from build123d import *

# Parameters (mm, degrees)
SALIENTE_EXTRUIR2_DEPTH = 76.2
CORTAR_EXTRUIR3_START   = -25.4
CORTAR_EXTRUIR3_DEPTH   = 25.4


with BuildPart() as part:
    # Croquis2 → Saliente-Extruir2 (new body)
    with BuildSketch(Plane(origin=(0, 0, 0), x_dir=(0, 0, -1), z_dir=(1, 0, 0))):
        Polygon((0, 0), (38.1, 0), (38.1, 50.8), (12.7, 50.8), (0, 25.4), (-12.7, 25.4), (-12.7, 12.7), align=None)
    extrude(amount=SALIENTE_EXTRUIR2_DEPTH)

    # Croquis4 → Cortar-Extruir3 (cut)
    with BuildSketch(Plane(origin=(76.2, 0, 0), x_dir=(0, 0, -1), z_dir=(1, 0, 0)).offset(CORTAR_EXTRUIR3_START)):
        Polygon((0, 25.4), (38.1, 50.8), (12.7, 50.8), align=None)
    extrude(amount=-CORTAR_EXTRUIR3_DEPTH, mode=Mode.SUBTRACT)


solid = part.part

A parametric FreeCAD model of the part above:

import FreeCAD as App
import Part
import Sketcher

V = App.Vector
Q = App.Units.Quantity


def add_polygon(sketch, points):
    """Adds a closed chain of lines whose ends are joined by coincident constraints."""
    first, n = sketch.GeometryCount, len(points)
    for a, b in zip(points, points[1:] + points[:1]):
        sketch.addGeometry(Part.LineSegment(App.Vector(*a, 0), App.Vector(*b, 0)), False)
    for i in range(n):
        sketch.addConstraint(Sketcher.Constraint("Coincident", first + i, 2, first + (i + 1) % n, 1))

doc = App.newDocument("Part")
body = doc.addObject("PartDesign::Body", "Body")

sketch1 = doc.addObject("Sketcher::SketchObject", "Sketch")
body.addObject(sketch1)
sketch1.AttachmentSupport = (doc.YZ_Plane, [""])
sketch1.MapMode = "FlatFace"
add_polygon(sketch1, [(0, 0), (0, -38), (51, -38), (51, -13), (25, 0), (25, 13), (13, 13)])
sketch1.addConstraint([
    Sketcher.Constraint("Vertical", 0),
    Sketcher.Constraint("Horizontal", 1),
    Sketcher.Constraint("Vertical", 2),
    Sketcher.Constraint("Vertical", 4),
    Sketcher.Constraint("Horizontal", 5),
    Sketcher.Constraint("Coincident", 6, 2, -1, 1),
    Sketcher.Constraint("PointOnObject", 3, 2, -1),
    Sketcher.Constraint("Equal", 5, 4),
    Sketcher.Constraint("DistanceX", 1, 1, 1, 2, Q("2 in")),
    Sketcher.Constraint("DistanceY", 2, 1, 2, 2, Q("1 in")),
    Sketcher.Constraint("DistanceX", 5, 2, 5, 1, Q("0.5 in")),
    Sketcher.Constraint("DistanceY", 0, 2, 0, 1, Q("1.5 in")),
    Sketcher.Constraint("DistanceX", -1, 1, 3, 2, Q("1 in")),
])
pad1 = doc.addObject("PartDesign::Pad", "Pad")
body.addObject(pad1)
pad1.Profile = sketch1
pad1.Length = Q("3 in")

sketch2 = doc.addObject("Sketcher::SketchObject", "Sketch001")
body.addObject(sketch2)
sketch2.AttachmentSupport = (doc.YZ_Plane, [""])
sketch2.MapMode = "FlatFace"
sketch2.AttachmentOffset = App.Placement(V(0, 0, 2 * 25.4), App.Rotation())
add_polygon(sketch2, [(25, 0), (51, -38), (51, -13)])
sketch2.addConstraint([
    Sketcher.Constraint("Vertical", 1),
    Sketcher.Constraint("PointOnObject", 2, 2, -1),
    Sketcher.Constraint("DistanceY", 1, 1, 1, 2, Q("1 in")),
    Sketcher.Constraint("DistanceX", -1, 1, 0, 2, Q("2 in")),
    Sketcher.Constraint("DistanceX", -1, 1, 2, 2, Q("1 in")),
    Sketcher.Constraint("DistanceY", 0, 2, -1, 1, Q("1.5 in")),
])
pocket1 = doc.addObject("PartDesign::Pocket", "Pocket")
body.addObject(pocket1)
pocket1.Profile = sketch2
pocket1.Length = Q("1 in")

doc.recompute()
